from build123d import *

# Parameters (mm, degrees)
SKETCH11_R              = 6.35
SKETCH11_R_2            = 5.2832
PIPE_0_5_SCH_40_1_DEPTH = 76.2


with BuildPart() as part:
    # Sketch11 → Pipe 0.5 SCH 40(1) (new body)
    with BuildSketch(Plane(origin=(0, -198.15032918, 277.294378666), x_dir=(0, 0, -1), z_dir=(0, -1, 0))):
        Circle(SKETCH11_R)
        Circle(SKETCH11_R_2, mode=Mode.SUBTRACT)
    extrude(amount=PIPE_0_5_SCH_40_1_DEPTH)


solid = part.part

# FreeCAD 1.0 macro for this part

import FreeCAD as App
import Part
import Sketcher
Q = App.Units.Quantity

doc = App.newDocument("Part")
params = doc.addObject("Spreadsheet::Sheet", "Params")
for row, (alias, value) in enumerate([
    ("sketch1_diameter", "0.5 in"),
    ("sketch1_diameter2", "0.416 in"),
    ("pad1_length", "3 in"),
], start=1):
    params.set(f"A{row}", alias)
    params.set(f"B{row}", "=" + value)
    params.setAlias(f"B{row}", alias)

body = doc.addObject("PartDesign::Body", "Body")

# Sketch on XZ plane
sketch1 = body.newObject("Sketcher::SketchObject", "Sketch")
sketch1.AttachmentSupport = (doc.getObject("XZ_Plane"), [""])
sketch1.MapMode = "FlatFace"
sketch1.AttachmentOffset = App.Placement(App.Vector(0, 0, 198.150329), App.Rotation())
sketch1.addGeometry(Part.Circle(App.Vector(0, 277, 0), App.Vector(0, 0, 1), 6), False)
sketch1.addGeometry(Part.Circle(App.Vector(0, 277, 0), App.Vector(0, 0, 1), 5), False)
sketch1.addConstraint(Sketcher.Constraint("Coincident", 1, 3, 0, 3))
sketch1.addConstraint(Sketcher.Constraint("PointOnObject", 0, 3, -2))
sketch1.addConstraint(Sketcher.Constraint("Diameter", 0, Q("0.5 in")))
sketch1.addConstraint(Sketcher.Constraint("Diameter", 1, Q("0.416 in")))
sketch1.addConstraint(Sketcher.Constraint("DistanceY", -1, 1, 0, 3, Q("277.294379 mm")))
sketch1.setExpression("Constraints[2]", "Params.sketch1_diameter")
sketch1.setExpression("Constraints[3]", "Params.sketch1_diameter2")
pad1 = body.newObject("PartDesign::Pad", "Pad")
pad1.Profile = sketch1
pad1.setExpression("Length", "Params.pad1_length")

doc.recompute()
